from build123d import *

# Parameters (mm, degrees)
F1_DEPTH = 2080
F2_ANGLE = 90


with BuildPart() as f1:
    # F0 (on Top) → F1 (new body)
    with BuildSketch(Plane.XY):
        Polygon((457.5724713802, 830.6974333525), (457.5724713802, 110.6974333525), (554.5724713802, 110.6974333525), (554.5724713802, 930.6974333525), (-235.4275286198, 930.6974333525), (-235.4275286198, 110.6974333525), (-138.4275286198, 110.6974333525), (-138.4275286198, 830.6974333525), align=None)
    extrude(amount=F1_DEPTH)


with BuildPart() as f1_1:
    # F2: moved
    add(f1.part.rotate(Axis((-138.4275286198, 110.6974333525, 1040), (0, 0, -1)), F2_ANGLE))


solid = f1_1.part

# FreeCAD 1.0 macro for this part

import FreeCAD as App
import Part
import Sketcher
from FreeCAD import Vector
Q = App.Units.Quantity


def add_polygon(sketch, points):
    """Adds a closed chain of lines whose ends are joined by coincident constraints."""
    first, n = sketch.GeometryCount, len(points)
    for a, b in zip(points, points[1:] + points[:1]):
        sketch.addGeometry(Part.LineSegment(App.Vector(*a, 0), App.Vector(*b, 0)), False)
    for i in range(n):
        sketch.addConstraint(Sketcher.Constraint("Coincident", first + i, 2, first + (i + 1) % n, 1))

doc = App.newDocument("Part")
body = doc.addObject("PartDesign::Body", "Body")

# Sketch on XY plane
sketch1 = body.newObject("Sketcher::SketchObject", "Sketch")
sketch1.AttachmentSupport = (doc.getObject("XY_Plane"), [""])
sketch1.MapMode = "FlatFace"
add_polygon(sketch1, [(458, 831), (458, 111), (555, 111), (555, 931), (-235, 931), (-235, 111), (-138, 111), (-138, 831)])  # lines 0-7
sketch1.addConstraint(Sketcher.Constraint("Vertical", 0))
sketch1.addConstraint(Sketcher.Constraint("Horizontal", 1))
sketch1.addConstraint(Sketcher.Constraint("Vertical", 2))
sketch1.addConstraint(Sketcher.Constraint("Horizontal", 3))
sketch1.addConstraint(Sketcher.Constraint("Vertical", 4))
sketch1.addConstraint(Sketcher.Constraint("Horizontal", 5))
sketch1.addConstraint(Sketcher.Constraint("Vertical", 6))
sketch1.addConstraint(Sketcher.Constraint("Horizontal", 7))
sketch1.addConstraint(Sketcher.Constraint("Horizontal", 1, 2, 4, 2))
sketch1.addConstraint(Sketcher.Constraint("Equal", 1, 5))
sketch1.addConstraint(Sketcher.Constraint("DistanceX", 1, 1, 1, 2, Q("97 mm")))
sketch1.addConstraint(Sketcher.Constraint("DistanceX", 3, 2, 3, 1, Q("790 mm")))
sketch1.addConstraint(Sketcher.Constraint("DistanceY", 0, 2, 0, 1, Q("720 mm")))
sketch1.addConstraint(Sketcher.Constraint("DistanceY", 2, 1, 2, 2, Q("820 mm")))
sketch1.addConstraint(Sketcher.Constraint("DistanceX", -1, 1, 0, 2, Q("457.572471 mm")))
sketch1.addConstraint(Sketcher.Constraint("DistanceY", -1, 1, 0, 2, Q("110.697433 mm")))
pad1 = body.newObject("PartDesign::Pad", "Pad")
pad1.Profile = sketch1
pad1.Length = 2080
body2 = doc.addObject("PartDesign::Body", "Body001")
doc.recompute()

body.Placement = App.Placement(Vector(-249.124962, -27.730095, 0), App.Rotation(Vector(0, 0, -1), 90))
boolean = body2.newObject("PartDesign::Boolean", "Boolean")
boolean.Type = "Fuse"
boolean.addObjects([body])

doc.recompute()
